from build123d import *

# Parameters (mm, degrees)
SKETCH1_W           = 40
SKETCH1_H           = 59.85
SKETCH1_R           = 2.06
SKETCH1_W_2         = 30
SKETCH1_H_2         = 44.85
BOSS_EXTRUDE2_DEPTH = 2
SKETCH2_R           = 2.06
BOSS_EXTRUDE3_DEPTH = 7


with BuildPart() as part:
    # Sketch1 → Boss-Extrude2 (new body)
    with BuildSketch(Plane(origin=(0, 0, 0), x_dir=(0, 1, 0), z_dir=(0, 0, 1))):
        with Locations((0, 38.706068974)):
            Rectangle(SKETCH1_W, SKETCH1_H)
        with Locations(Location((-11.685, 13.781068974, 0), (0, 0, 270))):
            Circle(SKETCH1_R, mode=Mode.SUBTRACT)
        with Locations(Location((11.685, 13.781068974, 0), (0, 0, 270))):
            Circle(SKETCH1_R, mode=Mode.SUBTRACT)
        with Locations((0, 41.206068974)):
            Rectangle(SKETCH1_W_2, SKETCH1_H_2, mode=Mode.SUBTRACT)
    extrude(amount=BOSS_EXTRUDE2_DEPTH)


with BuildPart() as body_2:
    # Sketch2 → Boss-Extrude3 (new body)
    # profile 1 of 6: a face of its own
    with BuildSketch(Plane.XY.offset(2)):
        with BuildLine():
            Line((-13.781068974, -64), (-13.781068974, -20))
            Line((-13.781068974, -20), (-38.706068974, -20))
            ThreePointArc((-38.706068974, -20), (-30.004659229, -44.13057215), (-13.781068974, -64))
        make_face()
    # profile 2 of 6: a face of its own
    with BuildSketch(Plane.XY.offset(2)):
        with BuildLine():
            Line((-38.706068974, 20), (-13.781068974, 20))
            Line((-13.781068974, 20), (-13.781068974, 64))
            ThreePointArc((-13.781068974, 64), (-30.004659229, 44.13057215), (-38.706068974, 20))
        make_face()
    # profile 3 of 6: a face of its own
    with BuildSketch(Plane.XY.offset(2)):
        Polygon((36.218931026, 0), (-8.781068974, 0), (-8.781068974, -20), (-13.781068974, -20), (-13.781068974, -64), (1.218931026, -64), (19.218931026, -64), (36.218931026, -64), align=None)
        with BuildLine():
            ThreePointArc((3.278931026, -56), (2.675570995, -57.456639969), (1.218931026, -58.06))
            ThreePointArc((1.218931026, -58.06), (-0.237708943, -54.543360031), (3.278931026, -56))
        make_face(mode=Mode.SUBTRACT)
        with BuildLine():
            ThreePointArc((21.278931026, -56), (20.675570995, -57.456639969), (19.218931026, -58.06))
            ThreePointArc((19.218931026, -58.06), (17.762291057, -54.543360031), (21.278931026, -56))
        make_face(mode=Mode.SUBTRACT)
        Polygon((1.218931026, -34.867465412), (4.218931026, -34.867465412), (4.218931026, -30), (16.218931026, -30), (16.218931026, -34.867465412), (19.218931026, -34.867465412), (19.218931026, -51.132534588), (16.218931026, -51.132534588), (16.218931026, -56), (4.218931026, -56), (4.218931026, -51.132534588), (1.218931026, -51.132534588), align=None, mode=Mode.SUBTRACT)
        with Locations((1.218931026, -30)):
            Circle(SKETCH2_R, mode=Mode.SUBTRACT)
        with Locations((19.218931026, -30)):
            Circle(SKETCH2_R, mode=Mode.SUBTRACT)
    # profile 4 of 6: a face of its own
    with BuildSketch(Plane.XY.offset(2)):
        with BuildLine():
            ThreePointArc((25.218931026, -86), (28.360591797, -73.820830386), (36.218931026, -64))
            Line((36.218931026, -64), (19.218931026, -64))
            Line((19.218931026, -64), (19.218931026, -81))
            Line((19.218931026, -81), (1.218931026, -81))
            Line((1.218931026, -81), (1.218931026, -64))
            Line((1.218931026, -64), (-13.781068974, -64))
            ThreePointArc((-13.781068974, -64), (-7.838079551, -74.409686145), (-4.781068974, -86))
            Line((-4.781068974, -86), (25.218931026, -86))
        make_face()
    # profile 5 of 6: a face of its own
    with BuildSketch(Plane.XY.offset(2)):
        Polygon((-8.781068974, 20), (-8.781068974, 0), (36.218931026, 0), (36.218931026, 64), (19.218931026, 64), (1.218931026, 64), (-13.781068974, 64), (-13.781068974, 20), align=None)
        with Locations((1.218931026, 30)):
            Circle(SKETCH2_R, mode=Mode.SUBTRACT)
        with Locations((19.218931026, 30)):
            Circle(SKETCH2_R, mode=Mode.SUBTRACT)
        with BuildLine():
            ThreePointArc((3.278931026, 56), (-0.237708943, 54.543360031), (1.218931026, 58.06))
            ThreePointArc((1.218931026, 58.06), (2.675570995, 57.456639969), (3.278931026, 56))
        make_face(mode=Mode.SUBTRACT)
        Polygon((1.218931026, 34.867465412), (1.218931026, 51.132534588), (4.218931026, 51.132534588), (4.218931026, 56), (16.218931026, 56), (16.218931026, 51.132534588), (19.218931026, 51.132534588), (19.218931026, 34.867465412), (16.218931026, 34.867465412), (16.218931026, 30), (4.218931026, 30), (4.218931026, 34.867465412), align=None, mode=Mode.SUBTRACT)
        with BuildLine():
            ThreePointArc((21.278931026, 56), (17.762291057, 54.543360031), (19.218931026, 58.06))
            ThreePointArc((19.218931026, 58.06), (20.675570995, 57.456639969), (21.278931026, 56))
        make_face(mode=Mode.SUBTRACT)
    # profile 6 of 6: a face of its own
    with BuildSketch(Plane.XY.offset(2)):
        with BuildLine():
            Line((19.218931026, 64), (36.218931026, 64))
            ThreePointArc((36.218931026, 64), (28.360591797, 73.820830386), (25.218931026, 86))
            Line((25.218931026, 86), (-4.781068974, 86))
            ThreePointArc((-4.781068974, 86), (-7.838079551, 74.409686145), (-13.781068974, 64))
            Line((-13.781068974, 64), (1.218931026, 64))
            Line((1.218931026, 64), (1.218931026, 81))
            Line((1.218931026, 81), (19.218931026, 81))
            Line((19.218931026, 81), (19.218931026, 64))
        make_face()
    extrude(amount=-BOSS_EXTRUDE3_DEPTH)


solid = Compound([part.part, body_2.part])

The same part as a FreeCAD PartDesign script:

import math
import FreeCAD as App
import Part
import Sketcher

V = App.Vector
Q = App.Units.Quantity


def add_polygon(sketch, points):
    """Adds a closed chain of lines whose ends are joined by coincident constraints."""
    first, n = sketch.GeometryCount, len(points)
    for a, b in zip(points, points[1:] + points[:1]):
        sketch.addGeometry(Part.LineSegment(App.Vector(*a, 0), App.Vector(*b, 0)), False)
    for i in range(n):
        sketch.addConstraint(Sketcher.Constraint("Coincident", first + i, 2, first + (i + 1) % n, 1))

doc = App.newDocument("Part")
body = doc.addObject("PartDesign::Body", "Body")

sketch1 = body.newObject("Sketcher::SketchObject", "Sketch")
sketch1.AttachmentSupport = (doc.getObject("XY_Plane"), [""])
sketch1.MapMode = "FlatFace"
add_polygon(sketch1, [(-68.6, -20), (-8.8, -20), (-8.8, 20), (-68.6, 20)])
sketch1.addGeometry(Part.Circle(V(-13.8, -11.7, 0), V(0, 0, 1), 2.1), False)
sketch1.addGeometry(Part.Circle(V(-13.8, 11.7, 0), V(0, 0, 1), 2.1), False)
add_polygon(sketch1, [(-18.8, 15), (-18.8, -15), (-63.6, -15), (-63.6, 15)])
sketch1.addConstraint([
    Sketcher.Constraint("Horizontal", 0),
    Sketcher.Constraint("Vertical", 1),
    Sketcher.Constraint("Horizontal", 2),
    Sketcher.Constraint("Vertical", 3),
    Sketcher.Constraint("Vertical", 6),
    Sketcher.Constraint("Horizontal", 7),
    Sketcher.Constraint("Vertical", 8),
    Sketcher.Constraint("Horizontal", 9),
    Sketcher.Constraint("Equal", 4, 5),
    Sketcher.Constraint("Symmetric", 4, 3, 5, 3, -1),
    Sketcher.Constraint("Diameter", 4, Q("4.12 mm")),
    Sketcher.Constraint("DistanceY", 1, 1, 1, 2, Q("40 mm")),
    Sketcher.Constraint("DistanceY", 6, 2, 6, 1, Q("30 mm")),
    Sketcher.Constraint("DistanceY", 0, 2, -1, 1, Q("20 mm")),
    Sketcher.Constraint("DistanceY", 6, 2, -1, 1, Q("15 mm")),
    Sketcher.Constraint("DistanceX", 4, 3, 0, 2, Q("5 mm")),
    Sketcher.Constraint("DistanceX", 6, 2, 4, 3, Q("5 mm")),
    Sketcher.Constraint("DistanceX", 3, 2, 7, 2, Q("5 mm")),
    Sketcher.Constraint("DistanceX", 0, 1, 0, 2, Q("59.85 mm")),
    Sketcher.Constraint("DistanceY", 4, 3, 5, 3, Q("23.37 mm")),
    Sketcher.Constraint("DistanceX", 4, 3, -1, 1, Q("13.781069 mm")),
])
pad1 = body.newObject("PartDesign::Pad", "Pad")
pad1.Profile = sketch1
pad1.Length = 2
body2 = doc.addObject("PartDesign::Body", "Body001")

sketch2 = body2.newObject("Sketcher::SketchObject", "Sketch001")
sketch2.AttachmentSupport = (doc.getObject("XY_Plane001"), [""])
sketch2.MapMode = "FlatFace"
sketch2.AttachmentOffset = App.Placement(V(0, 0, 2), App.Rotation())
sketch2.addGeometry(Part.ArcOfCircle(Part.Circle(V(36.2, -6.6, 0), V(0, 0, 1), 76.1), math.radians(-170), math.radians(-131)), False)
sketch2.addGeometry(Part.ArcOfCircle(Part.Circle(V(-50.5, -91.9, 0), V(0, 0, 1), 46.1), math.radians(7), math.radians(37)), False)
sketch2.addGeometry(Part.LineSegment(V(-4.8, -86, 0), V(25.2, -86, 0)), False)
sketch2.addGeometry(Part.ArcOfCircle(Part.Circle(V(55.2, -87.2, 0), V(0, 0, 1), 30), math.radians(129), math.radians(178)), False)
sketch2.addGeometry(Part.LineSegment(V(36.2, -64, 0), V(36.2, 64, 0)), False)
sketch2.addGeometry(Part.ArcOfCircle(Part.Circle(V(55.2, 87.2, 0), V(0, 0, 1), 30), math.radians(-178), math.radians(-129)), False)
sketch2.addGeometry(Part.LineSegment(V(25.2, 86, 0), V(-4.8, 86, 0)), False)
sketch2.addGeometry(Part.ArcOfCircle(Part.Circle(V(-50.5, 91.9, 0), V(0, 0, 1), 46.1), math.radians(-37), math.radians(-7)), False)
sketch2.addGeometry(Part.ArcOfCircle(Part.Circle(V(36.2, 6.6, 0), V(0, 0, 1), 76.1), math.radians(131), math.radians(170)), False)
sketch2.addGeometry(Part.LineSegment(V(-38.7, 20, 0), V(-8.8, 20, 0)), False)
sketch2.addGeometry(Part.LineSegment(V(-8.8, 20, 0), V(-8.8, -20, 0)), False)
sketch2.addGeometry(Part.LineSegment(V(-8.8, -20, 0), V(-38.7, -20, 0)), False)
add_polygon(sketch2, [(1.2, -64), (19.2, -64), (19.2, -81), (1.2, -81)])
sketch2.addGeometry(Part.Circle(V(19.2, -30, 0), V(0, 0, 1), 2.1), False)
sketch2.addGeometry(Part.ArcOfCircle(Part.Circle(V(1.2, -56, 0), V(0, 0, 1), 2.1), math.radians(0), math.radians(270)), False)
sketch2.addGeometry(Part.ArcOfCircle(Part.Circle(V(1.2, -56, 0), V(0, 0, 1), 2.1), math.radians(-90), math.radians(0)), False)
sketch2.addGeometry(Part.ArcOfCircle(Part.Circle(V(19.2, -56, 0), V(0, 0, 1), 2.1), math.radians(0), math.radians(270)), False)
sketch2.addGeometry(Part.ArcOfCircle(Part.Circle(V(19.2, -56, 0), V(0, 0, 1), 2.1), math.radians(-90), math.radians(0)), False)
sketch2.addGeometry(Part.Circle(V(1.2, -30, 0), V(0, 0, 1), 2.1), False)
add_polygon(sketch2, [(1.2, -51.1), (1.2, -34.9), (4.2, -34.9), (4.2, -30), (16.2, -30), (16.2, -34.9), (19.2, -34.9), (19.2, -51.1), (16.2, -51.1), (16.2, -56), (4.2, -56), (4.2, -51.1)])
sketch2.addGeometry(Part.ArcOfCircle(Part.Circle(V(19.2, 56, 0), V(0, 0, 1), 2.1), math.radians(90), math.radians(360)), False)
sketch2.addGeometry(Part.ArcOfCircle(Part.Circle(V(19.2, 56, 0), V(0, 0, 1), 2.1), math.radians(0), math.radians(90)), False)
add_polygon(sketch2, [(19.2, 64), (1.2, 64), (1.2, 81), (19.2, 81)])
sketch2.addGeometry(Part.Circle(V(1.2, 30, 0), V(0, 0, 1), 2.1), False)
sketch2.addGeometry(Part.Circle(V(19.2, 30, 0), V(0, 0, 1), 2.1), False)
sketch2.addGeometry(Part.ArcOfCircle(Part.Circle(V(1.2, 56, 0), V(0, 0, 1), 2.1), math.radians(0), math.radians(90)), False)
sketch2.addGeometry(Part.ArcOfCircle(Part.Circle(V(1.2, 56, 0), V(0, 0, 1), 2.1), math.radians(90), math.radians(360)), False)
add_polygon(sketch2, [(4.2, 34.9), (1.2, 34.9), (1.2, 51.1), (4.2, 51.1), (4.2, 56), (16.2, 56), (16.2, 51.1), (19.2, 51.1), (19.2, 34.9), (16.2, 34.9), (16.2, 30), (4.2, 30)])
sketch2.addConstraint([
    Sketcher.Constraint("Coincident", 0, 2, 1, 2),
    Sketcher.Constraint("Coincident", 1, 1, 2, 1),
    Sketcher.Constraint("Coincident", 2, 2, 3, 2),
    Sketcher.Constraint("Coincident", 3, 1, 4, 1),
    Sketcher.Constraint("Coincident", 4, 2, 5, 2),
    Sketcher.Constraint("Coincident", 5, 1, 6, 1),
    Sketcher.Constraint("Coincident", 6, 2, 7, 2),
    Sketcher.Constraint("Coincident", 7, 1, 8, 1),
    Sketcher.Constraint("Coincident", 8, 2, 9, 1),
    Sketcher.Constraint("Coincident", 9, 2, 10, 1),
    Sketcher.Constraint("Coincident", 10, 2, 11, 1),
    Sketcher.Constraint("Coincident", 11, 2, 0, 1),
    Sketcher.Constraint("Tangent", 17, 1, 18, 2),
    Sketcher.Constraint("Coincident", 18, 1, 17, 2),
    Sketcher.Constraint("Tangent", 19, 1, 20, 2),
    Sketcher.Constraint("Coincident", 20, 1, 19, 2),
    Sketcher.Constraint("Tangent", 34, 1, 35, 2),
    Sketcher.Constraint("Coincident", 35, 1, 34, 2),
    Sketcher.Constraint("Tangent", 42, 1, 43, 2),
    Sketcher.Constraint("Coincident", 43, 1, 42, 2),
    Sketcher.Constraint("Horizontal", 2),
    Sketcher.Constraint("Vertical", 4),
    Sketcher.Constraint("Horizontal", 6),
    Sketcher.Constraint("Horizontal", 9),
    Sketcher.Constraint("Vertical", 10),
    Sketcher.Constraint("Horizontal", 11),
    Sketcher.Constraint("Horizontal", 12),
    Sketcher.Constraint("Vertical", 13),
    Sketcher.Constraint("Horizontal", 14),
    Sketcher.Constraint("Vertical", 15),
    Sketcher.Constraint("Vertical", 22),
    Sketcher.Constraint("Horizontal", 23),
    Sketcher.Constraint("Vertical", 24),
    Sketcher.Constraint("Horizontal", 25),
    Sketcher.Constraint("Vertical", 26),
    Sketcher.Constraint("Horizontal", 27),
    Sketcher.Constraint("Vertical", 28),
    Sketcher.Constraint("Horizontal", 29),
    Sketcher.Constraint("Vertical", 30),
    Sketcher.Constraint("Horizontal", 31),
    Sketcher.Constraint("Vertical", 32),
    Sketcher.Constraint("Horizontal", 33),
    Sketcher.Constraint("Horizontal", 36),
    Sketcher.Constraint("Vertical", 37),
    Sketcher.Constraint("Horizontal", 38),
    Sketcher.Constraint("Vertical", 39),
    Sketcher.Constraint("Horizontal", 44),
    Sketcher.Constraint("Vertical", 45),
    Sketcher.Constraint("Horizontal", 46),
    Sketcher.Constraint("Vertical", 47),
    Sketcher.Constraint("Horizontal", 48),
    Sketcher.Constraint("Vertical", 49),
    Sketcher.Constraint("Horizontal", 50),
    Sketcher.Constraint("Vertical", 51),
    Sketcher.Constraint("Horizontal", 52),
    Sketcher.Constraint("Vertical", 53),
    Sketcher.Constraint("Horizontal", 54),
    Sketcher.Constraint("Vertical", 55),
    Sketcher.Constraint("Equal", 3, 5),
    Sketcher.Constraint("Equal", 1, 7),
    Sketcher.Constraint("Equal", 0, 8),
    Sketcher.Constraint("Equal", 16, 17),
    Sketcher.Constraint("Equal", 18, 19),
    Sketcher.Constraint("Equal", 20, 21),
    Sketcher.Constraint("Equal", 21, 34),
    Sketcher.Constraint("Equal", 35, 40),
    Sketcher.Constraint("Equal", 40, 41),
    Sketcher.Constraint("Equal", 41, 42),
    Sketcher.Constraint("Symmetric", 3, 3, 5, 3, -1),
    Sketcher.Constraint("Symmetric", 1, 3, 7, 3, -1),
    Sketcher.Constraint("Symmetric", 0, 3, 8, 3, -1),
    Sketcher.Constraint("Symmetric", 19, 3, 34, 3, -1),
    Sketcher.Constraint("Symmetric", 21, 3, 40, 3, -1),
    Sketcher.Constraint("Symmetric", 16, 3, 41, 3, -1),
    Sketcher.Constraint("Symmetric", 17, 3, 42, 3, -1),
    Sketcher.Constraint("Symmetric", 15, 2, 36, 2, -1),
    Sketcher.Constraint("Symmetric", 13, 2, 38, 2, -1),
    Sketcher.Constraint("Symmetric", 22, 2, 44, 2, -1),
    Sketcher.Constraint("Symmetric", 32, 2, 46, 2, -1),
    Sketcher.Constraint("Symmetric", 30, 2, 48, 2, -1),
    Sketcher.Constraint("Symmetric", 28, 2, 50, 2, -1),
    Sketcher.Constraint("Symmetric", 26, 2, 52, 2, -1),
    Sketcher.Constraint("Symmetric", 24, 2, 54, 2, -1),
    Sketcher.Constraint("Horizontal", 18, 3, 19, 3),
    Sketcher.Constraint("Horizontal", 16, 3, 21, 3),
    Sketcher.Constraint("Horizontal", 0, 2, 3, 1),
    Sketcher.Constraint("Horizontal", 3, 1, 12, 2),
    Sketcher.Constraint("Horizontal", 20, 3, 17, 1),
    Sketcher.Constraint("Horizontal", 17, 1, 19, 1),
    Sketcher.Constraint("Horizontal", 21, 3, 24, 2),
    Sketcher.Constraint("Horizontal", 23, 2, 26, 2),
    Sketcher.Constraint("Horizontal", 19, 1, 30, 2),
    Sketcher.Constraint("Horizontal", 29, 2, 32, 2),
    Sketcher.Constraint("Horizontal", 43, 3, 35, 1),
    Sketcher.Constraint("Horizontal", 35, 1, 42, 1),
    Sketcher.Constraint("Vertical", 16, 3, 19, 3),
    Sketcher.Constraint("Vertical", 18, 3, 21, 3),
    Sketcher.Constraint("Vertical", 8, 3, 3, 1),
    Sketcher.Constraint("Vertical", 2, 2, 5, 1),
    Sketcher.Constraint("Vertical", 8, 2, 11, 2),
    Sketcher.Constraint("Vertical", 41, 3, 12, 2),
    Sketcher.Constraint("Vertical", 43, 3, 14, 2),
    Sketcher.Constraint("Vertical", 15, 2, 18, 1),
    Sketcher.Constraint("Vertical", 13, 2, 20, 1),
    Sketcher.Constraint("Vertical", 18, 1, 22, 2),
    Sketcher.Constraint("Vertical", 20, 1, 27, 2),
    Sketcher.Constraint("Vertical", 26, 2, 29, 2),
    Sketcher.Constraint("Vertical", 24, 2, 31, 2),
    Sketcher.Constraint("Vertical", 28, 2, 34, 1),
    Sketcher.Constraint("Vertical", 37, 2, 43, 1),
    Sketcher.Constraint("Equal", 23, 27),
    Sketcher.Constraint("Equal", 26, 30),
    Sketcher.Constraint("Radius", 3, Q("30 mm")),
    Sketcher.Constraint("Diameter", 16, Q("4.12 mm")),
    Sketcher.Constraint("DistanceX", 2, 1, 2, 2, Q("30 mm")),
    Sketcher.Constraint("DistanceX", 12, 1, 12, 2, Q("18 mm")),
    Sketcher.Constraint("DistanceX", 23, 1, 23, 2, Q("3 mm")),
    Sketcher.Constraint("DistanceY", 4, 1, 4, 2, Q("128 mm")),
    Sketcher.Constraint("DistanceY", 10, 2, 10, 1, Q("40 mm")),
    Sketcher.Constraint("DistanceY", 13, 2, 13, 1, Q("17 mm")),
    Sketcher.Constraint("DistanceY", 16, 3, -1, 1, Q("30 mm")),
    Sketcher.Constraint("DistanceY", 17, 3, -1, 1, Q("56 mm")),
    Sketcher.Constraint("DistanceY", 1, 1, -1, 1, Q("86 mm")),
    Sketcher.Constraint("DistanceX", 9, 1, 9, 2, Q("29.925 mm")),
    Sketcher.Constraint("Radius", 1, Q("46.079071 mm")),
    Sketcher.Constraint("Radius", 0, Q("76.110945 mm")),
    Sketcher.Constraint("DistanceY", 22, 1, 22, 2, Q("16.265069 mm")),
    Sketcher.Constraint("DistanceX", -1, 1, 0, 3, Q("36.218931 mm")),
    Sketcher.Constraint("DistanceY", 3, 3, -1, 1, Q("87.237238 mm")),
    Sketcher.Constraint("DistanceX", -1, 1, 16, 3, Q("19.218931 mm")),
    Sketcher.Constraint("DistanceX", 0, 2, -1, 1, Q("13.781069 mm")),
])
pad2 = body2.newObject("PartDesign::Pad", "Pad001")
pad2.Profile = sketch2
pad2.Length = 7
pad2.Reversed = True

doc.recompute()
